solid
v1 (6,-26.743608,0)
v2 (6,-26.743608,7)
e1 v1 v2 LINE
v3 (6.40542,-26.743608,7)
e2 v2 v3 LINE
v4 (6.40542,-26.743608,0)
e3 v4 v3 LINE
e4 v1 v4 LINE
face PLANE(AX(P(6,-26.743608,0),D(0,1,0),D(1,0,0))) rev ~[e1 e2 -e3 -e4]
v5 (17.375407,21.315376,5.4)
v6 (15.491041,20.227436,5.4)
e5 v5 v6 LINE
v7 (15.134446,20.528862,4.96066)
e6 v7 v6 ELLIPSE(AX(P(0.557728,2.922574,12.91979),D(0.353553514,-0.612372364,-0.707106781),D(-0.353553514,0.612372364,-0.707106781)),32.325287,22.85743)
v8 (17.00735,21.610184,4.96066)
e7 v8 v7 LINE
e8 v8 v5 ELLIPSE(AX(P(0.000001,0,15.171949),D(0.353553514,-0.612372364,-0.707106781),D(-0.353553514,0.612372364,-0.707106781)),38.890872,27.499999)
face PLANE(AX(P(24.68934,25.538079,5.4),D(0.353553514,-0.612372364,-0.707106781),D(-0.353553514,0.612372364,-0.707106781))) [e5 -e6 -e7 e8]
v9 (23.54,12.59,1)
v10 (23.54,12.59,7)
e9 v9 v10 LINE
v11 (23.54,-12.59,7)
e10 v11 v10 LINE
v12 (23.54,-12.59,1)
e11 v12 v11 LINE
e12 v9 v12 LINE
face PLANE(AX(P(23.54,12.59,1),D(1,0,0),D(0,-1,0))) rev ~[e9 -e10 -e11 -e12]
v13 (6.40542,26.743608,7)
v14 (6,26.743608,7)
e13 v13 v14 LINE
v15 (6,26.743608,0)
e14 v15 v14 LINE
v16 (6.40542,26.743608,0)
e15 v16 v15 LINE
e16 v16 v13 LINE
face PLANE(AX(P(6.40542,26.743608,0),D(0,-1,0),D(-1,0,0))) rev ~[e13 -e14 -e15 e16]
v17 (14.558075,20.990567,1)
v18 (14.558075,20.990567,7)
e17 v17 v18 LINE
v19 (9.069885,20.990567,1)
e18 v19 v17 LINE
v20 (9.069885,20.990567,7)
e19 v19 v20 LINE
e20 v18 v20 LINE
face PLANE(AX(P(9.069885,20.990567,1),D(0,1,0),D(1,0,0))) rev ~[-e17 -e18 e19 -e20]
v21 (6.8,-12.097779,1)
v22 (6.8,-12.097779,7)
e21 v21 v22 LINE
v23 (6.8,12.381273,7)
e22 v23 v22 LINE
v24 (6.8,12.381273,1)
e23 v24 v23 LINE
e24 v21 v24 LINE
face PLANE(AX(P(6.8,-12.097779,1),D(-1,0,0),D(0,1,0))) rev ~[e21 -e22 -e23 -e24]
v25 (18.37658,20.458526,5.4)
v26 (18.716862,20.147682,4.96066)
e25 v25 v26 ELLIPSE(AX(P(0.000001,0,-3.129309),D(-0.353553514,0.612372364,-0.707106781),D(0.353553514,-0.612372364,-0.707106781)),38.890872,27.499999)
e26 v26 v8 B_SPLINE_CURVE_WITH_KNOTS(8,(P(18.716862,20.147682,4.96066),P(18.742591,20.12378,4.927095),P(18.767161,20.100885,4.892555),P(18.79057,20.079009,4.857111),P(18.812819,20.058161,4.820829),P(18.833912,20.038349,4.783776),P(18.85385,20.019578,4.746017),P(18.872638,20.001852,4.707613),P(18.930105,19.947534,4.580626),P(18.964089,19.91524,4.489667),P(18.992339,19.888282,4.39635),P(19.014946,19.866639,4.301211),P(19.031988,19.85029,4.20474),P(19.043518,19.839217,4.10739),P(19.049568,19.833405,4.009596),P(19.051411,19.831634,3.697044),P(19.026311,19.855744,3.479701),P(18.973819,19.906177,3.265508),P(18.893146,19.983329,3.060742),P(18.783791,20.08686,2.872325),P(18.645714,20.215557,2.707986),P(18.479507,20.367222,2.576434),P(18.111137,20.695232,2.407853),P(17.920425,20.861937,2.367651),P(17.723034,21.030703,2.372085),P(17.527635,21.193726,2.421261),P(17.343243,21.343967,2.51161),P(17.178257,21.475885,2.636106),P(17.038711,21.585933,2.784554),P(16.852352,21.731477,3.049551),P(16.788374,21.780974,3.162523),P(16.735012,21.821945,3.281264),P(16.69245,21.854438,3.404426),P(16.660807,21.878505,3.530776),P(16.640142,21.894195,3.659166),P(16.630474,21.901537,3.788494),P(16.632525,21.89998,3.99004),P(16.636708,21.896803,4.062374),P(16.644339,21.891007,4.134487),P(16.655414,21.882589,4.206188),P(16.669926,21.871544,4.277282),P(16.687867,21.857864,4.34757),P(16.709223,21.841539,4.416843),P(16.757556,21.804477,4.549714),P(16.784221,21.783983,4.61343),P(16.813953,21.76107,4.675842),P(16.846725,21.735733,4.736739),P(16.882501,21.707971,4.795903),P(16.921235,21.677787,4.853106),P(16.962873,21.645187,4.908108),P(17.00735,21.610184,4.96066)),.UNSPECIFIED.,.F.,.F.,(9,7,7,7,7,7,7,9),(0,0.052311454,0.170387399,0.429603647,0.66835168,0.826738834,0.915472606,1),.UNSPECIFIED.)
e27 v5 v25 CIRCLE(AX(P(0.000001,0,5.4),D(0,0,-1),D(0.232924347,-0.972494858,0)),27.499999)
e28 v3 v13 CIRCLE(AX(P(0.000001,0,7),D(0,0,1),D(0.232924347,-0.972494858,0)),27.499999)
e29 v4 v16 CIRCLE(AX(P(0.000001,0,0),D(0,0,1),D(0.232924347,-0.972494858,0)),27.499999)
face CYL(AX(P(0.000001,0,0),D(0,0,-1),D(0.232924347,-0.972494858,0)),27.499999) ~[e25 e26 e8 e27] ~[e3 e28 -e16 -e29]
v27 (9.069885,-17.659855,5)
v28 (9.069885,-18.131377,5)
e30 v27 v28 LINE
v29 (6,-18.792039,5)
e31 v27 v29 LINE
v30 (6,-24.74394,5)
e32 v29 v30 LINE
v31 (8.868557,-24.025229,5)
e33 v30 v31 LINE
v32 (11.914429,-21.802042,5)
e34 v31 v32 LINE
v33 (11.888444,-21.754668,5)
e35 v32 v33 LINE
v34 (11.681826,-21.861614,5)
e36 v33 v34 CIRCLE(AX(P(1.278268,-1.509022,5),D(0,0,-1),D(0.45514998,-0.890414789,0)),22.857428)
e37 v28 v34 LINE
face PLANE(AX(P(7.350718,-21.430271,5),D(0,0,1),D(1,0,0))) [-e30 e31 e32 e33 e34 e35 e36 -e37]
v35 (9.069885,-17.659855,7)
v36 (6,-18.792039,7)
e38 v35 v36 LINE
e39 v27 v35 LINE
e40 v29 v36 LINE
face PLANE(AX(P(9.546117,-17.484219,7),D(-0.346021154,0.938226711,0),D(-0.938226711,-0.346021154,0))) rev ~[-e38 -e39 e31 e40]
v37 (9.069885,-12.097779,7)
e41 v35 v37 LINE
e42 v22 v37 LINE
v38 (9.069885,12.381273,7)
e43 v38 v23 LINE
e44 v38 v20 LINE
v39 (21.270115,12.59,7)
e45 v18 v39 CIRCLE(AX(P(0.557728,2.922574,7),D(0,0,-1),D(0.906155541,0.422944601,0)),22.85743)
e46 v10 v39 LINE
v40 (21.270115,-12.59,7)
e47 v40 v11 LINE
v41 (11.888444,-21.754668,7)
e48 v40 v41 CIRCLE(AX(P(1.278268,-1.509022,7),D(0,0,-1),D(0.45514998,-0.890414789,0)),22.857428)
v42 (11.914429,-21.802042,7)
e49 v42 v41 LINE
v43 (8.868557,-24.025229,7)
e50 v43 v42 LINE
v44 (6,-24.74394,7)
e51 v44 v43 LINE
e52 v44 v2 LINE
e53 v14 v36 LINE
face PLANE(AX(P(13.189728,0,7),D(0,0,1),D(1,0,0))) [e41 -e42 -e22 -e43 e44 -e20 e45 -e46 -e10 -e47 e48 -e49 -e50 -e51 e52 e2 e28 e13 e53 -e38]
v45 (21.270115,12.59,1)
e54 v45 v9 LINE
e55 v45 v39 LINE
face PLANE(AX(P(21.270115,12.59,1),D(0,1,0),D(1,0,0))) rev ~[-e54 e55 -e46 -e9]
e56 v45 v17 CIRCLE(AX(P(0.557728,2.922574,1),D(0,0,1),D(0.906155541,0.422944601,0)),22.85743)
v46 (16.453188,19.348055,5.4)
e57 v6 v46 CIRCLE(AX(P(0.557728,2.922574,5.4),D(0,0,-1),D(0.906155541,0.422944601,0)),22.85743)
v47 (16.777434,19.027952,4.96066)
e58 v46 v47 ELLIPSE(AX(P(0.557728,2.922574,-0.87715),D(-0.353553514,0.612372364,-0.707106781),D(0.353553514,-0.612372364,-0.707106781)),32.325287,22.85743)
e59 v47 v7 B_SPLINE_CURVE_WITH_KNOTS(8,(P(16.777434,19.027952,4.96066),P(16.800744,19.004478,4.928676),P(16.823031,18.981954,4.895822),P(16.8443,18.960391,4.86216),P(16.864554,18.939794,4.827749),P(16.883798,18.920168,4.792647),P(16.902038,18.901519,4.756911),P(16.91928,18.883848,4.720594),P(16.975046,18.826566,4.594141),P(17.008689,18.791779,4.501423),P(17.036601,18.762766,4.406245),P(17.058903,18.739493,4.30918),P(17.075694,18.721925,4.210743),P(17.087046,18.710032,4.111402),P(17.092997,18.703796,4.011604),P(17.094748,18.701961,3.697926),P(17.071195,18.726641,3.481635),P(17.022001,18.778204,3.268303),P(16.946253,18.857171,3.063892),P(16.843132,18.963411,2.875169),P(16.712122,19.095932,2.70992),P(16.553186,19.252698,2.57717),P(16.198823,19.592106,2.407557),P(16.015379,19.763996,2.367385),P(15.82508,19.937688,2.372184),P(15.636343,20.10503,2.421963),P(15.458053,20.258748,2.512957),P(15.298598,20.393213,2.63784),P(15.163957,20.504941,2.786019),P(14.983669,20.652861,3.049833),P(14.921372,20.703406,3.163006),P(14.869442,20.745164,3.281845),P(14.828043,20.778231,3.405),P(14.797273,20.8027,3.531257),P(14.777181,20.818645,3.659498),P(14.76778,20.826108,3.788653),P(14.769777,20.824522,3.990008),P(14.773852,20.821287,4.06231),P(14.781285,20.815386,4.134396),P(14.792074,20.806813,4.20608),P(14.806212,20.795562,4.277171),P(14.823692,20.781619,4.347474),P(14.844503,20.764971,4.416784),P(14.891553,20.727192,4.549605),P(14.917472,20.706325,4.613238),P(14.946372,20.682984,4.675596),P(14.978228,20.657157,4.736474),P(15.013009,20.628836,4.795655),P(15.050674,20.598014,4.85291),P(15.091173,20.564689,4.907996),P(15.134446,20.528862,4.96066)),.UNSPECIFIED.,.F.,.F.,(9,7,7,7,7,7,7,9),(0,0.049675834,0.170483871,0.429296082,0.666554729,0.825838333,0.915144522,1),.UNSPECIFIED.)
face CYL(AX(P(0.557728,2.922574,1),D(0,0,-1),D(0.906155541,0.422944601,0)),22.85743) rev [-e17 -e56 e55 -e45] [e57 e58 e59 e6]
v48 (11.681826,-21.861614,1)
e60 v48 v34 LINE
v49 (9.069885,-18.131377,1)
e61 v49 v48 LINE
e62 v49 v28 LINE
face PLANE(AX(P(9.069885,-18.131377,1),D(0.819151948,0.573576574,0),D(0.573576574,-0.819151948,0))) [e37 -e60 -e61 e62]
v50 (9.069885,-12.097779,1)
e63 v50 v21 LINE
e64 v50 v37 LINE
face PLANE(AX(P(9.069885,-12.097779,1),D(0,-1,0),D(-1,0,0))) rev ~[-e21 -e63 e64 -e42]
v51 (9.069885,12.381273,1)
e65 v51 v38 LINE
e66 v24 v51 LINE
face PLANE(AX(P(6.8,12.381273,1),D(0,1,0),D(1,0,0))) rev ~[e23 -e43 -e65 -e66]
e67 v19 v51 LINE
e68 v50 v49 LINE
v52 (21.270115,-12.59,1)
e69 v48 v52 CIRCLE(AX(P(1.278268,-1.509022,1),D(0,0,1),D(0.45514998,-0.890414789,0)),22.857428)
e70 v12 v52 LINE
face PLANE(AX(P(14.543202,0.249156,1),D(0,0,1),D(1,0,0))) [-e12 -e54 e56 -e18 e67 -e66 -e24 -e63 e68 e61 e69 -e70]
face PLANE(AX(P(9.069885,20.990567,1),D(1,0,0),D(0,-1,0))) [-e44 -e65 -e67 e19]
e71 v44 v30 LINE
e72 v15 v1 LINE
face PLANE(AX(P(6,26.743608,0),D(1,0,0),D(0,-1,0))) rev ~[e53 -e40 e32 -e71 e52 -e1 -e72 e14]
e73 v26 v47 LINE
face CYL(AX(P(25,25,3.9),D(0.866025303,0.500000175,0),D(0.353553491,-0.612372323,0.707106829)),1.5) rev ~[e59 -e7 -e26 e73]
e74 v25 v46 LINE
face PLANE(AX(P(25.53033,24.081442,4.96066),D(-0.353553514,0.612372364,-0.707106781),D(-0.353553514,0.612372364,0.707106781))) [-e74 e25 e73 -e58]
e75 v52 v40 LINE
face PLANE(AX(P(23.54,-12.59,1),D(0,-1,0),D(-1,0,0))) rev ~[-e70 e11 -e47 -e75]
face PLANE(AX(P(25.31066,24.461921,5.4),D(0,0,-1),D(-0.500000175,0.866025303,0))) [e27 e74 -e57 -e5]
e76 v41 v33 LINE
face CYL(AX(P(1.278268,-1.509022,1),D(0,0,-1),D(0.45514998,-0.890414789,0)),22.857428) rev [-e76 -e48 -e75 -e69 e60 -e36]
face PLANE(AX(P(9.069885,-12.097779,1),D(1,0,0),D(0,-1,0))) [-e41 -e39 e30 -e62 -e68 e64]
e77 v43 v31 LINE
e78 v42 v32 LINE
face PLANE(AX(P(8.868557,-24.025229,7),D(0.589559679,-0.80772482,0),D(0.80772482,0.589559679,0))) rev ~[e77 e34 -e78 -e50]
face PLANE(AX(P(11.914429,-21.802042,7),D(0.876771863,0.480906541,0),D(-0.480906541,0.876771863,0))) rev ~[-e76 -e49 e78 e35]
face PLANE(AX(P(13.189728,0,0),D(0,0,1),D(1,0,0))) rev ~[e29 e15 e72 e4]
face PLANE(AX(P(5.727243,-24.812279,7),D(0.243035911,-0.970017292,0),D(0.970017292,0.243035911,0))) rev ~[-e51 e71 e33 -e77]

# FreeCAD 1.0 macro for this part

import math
import FreeCAD as App
import Part
import Sketcher

V = App.Vector
Q = App.Units.Quantity


def add_polygon(sketch, points):
    """Adds a closed chain of lines whose ends are joined by coincident constraints."""
    first, n = sketch.GeometryCount, len(points)
    for a, b in zip(points, points[1:] + points[:1]):
        sketch.addGeometry(Part.LineSegment(App.Vector(*a, 0), App.Vector(*b, 0)), False)
    for i in range(n):
        sketch.addConstraint(Sketcher.Constraint("Coincident", first + i, 2, first + (i + 1) % n, 1))

doc = App.newDocument("Part")
body = doc.addObject("PartDesign::Body", "Body")

# Sketch on XY plane
sketch1 = body.newObject("Sketcher::SketchObject", "Sketch")
sketch1.AttachmentSupport = (doc.getObject("XY_Plane"), [""])
sketch1.MapMode = "FlatFace"
sketch1.addGeometry([
    Part.ArcOfCircle(Part.Circle(V(0.000001, 0, 0), V(0, 0, 1), 27.499999), math.radians(-76.530698), math.radians(76.530698)),
    Part.LineSegment(V(6.40542, 26.743608, 0), V(6, 26.743608, 0)),
    Part.LineSegment(V(6, 26.743608, 0), V(6, -26.743608, 0)),
    Part.LineSegment(V(6, -26.743608, 0), V(6.40542, -26.743608, 0)),
], False)
sketch1.addConstraint([
    Sketcher.Constraint("Coincident", 0, 2, 1, 1),
    Sketcher.Constraint("Coincident", 1, 2, 2, 1),
    Sketcher.Constraint("Coincident", 2, 2, 3, 1),
    Sketcher.Constraint("Coincident", 3, 2, 0, 1),
    Sketcher.Constraint("Horizontal", 1),
    Sketcher.Constraint("Vertical", 2),
    Sketcher.Constraint("Horizontal", 3),
    Sketcher.Constraint("Coincident", 0, 3, -1, 1),
    Sketcher.Constraint("Vertical", 0, 2, 3, 2),
    Sketcher.Constraint("Radius", 0, Q("27.499999 mm")),
    Sketcher.Constraint("DistanceX", -1, 1, 1, 2, Q("6 mm")),
    Sketcher.Constraint("DistanceX", 1, 2, 1, 1, Q("0.40542 mm")),
])
pad1 = body.newObject("PartDesign::Pad", "Pad")
pad1.Profile = sketch1
pad1.Length = 7

# Sketch on XY plane
sketch2 = body.newObject("Sketcher::SketchObject", "Sketch001")
sketch2.AttachmentSupport = (doc.getObject("XY_Plane"), [""])
sketch2.MapMode = "FlatFace"
sketch2.AttachmentOffset = App.Placement(V(0, 0, 1), App.Rotation())
sketch2.addGeometry([
    Part.LineSegment(V(9.069885, 20.990567, 0), V(9.069885, 12.381273, 0)),  # 0
    Part.LineSegment(V(9.069885, 12.381273, 0), V(6.8, 12.381273, 0)),  # 1
    Part.LineSegment(V(6.8, 12.381273, 0), V(6.8, -12.097779, 0)),  # 2
    Part.LineSegment(V(6.8, -12.097779, 0), V(9.069885, -12.097779, 0)),  # 3
    Part.LineSegment(V(9.069885, -12.097779, 0), V(9.069885, -18.131377, 0)),  # 4
    Part.LineSegment(V(9.069885, -18.131377, 0), V(11.681826, -21.861614, 0)),  # 5
    Part.ArcOfCircle(Part.Circle(V(1.278268, -1.509022, 0), V(0, 0, 1), 22.857428), math.radians(-62.925415), math.radians(-28.998501)),  # 6
    Part.LineSegment(V(21.270115, -12.59, 0), V(23.54, -12.59, 0)),  # 7
    Part.LineSegment(V(23.54, -12.59, 0), V(23.54, 12.59, 0)),  # 8
    Part.LineSegment(V(23.54, 12.59, 0), V(21.270115, 12.59, 0)),  # 9
    Part.ArcOfCircle(Part.Circle(V(0.557728, 2.922574, 0), V(0, 0, 1), 22.85743), math.radians(25.020633), math.radians(52.228968)),  # 10
    Part.LineSegment(V(14.558075, 20.990567, 0), V(9.069885, 20.990567, 0)),  # 11
], False)
sketch2.addConstraint([
    Sketcher.Constraint("Coincident", 0, 2, 1, 1),
    Sketcher.Constraint("Coincident", 1, 2, 2, 1),
    Sketcher.Constraint("Coincident", 2, 2, 3, 1),
    Sketcher.Constraint("Coincident", 3, 2, 4, 1),
    Sketcher.Constraint("Coincident", 4, 2, 5, 1),
    Sketcher.Constraint("Coincident", 5, 2, 6, 1),
    Sketcher.Constraint("Coincident", 6, 2, 7, 1),
    Sketcher.Constraint("Coincident", 7, 2, 8, 1),
    Sketcher.Constraint("Coincident", 8, 2, 9, 1),
    Sketcher.Constraint("Coincident", 9, 2, 10, 1),
    Sketcher.Constraint("Coincident", 10, 2, 11, 1),
    Sketcher.Constraint("Coincident", 11, 2, 0, 1),
    Sketcher.Constraint("Vertical", 0),
    Sketcher.Constraint("Horizontal", 1),
    Sketcher.Constraint("Vertical", 2),
    Sketcher.Constraint("Horizontal", 3),
    Sketcher.Constraint("Vertical", 4),
    Sketcher.Constraint("Horizontal", 7),
    Sketcher.Constraint("Vertical", 8),
    Sketcher.Constraint("Horizontal", 9),
    Sketcher.Constraint("Horizontal", 11),
    Sketcher.Constraint("Equal", 6, 10),
    Sketcher.Constraint("Symmetric", 6, 2, 9, 2, -1),
    Sketcher.Constraint("Vertical", 0, 2, 3, 2),
    Sketcher.Constraint("Equal", 3, 7),
    Sketcher.Constraint("Angle", 5, Q("-54.99999 deg")),
    Sketcher.Constraint("DistanceY", 8, 1, 8, 2, Q("25.18 mm")),
    Sketcher.Constraint("DistanceX", -1, 1, 1, 2, Q("6.8 mm")),
    Sketcher.Constraint("DistanceX", -1, 1, 7, 2, Q("23.54 mm")),
    Sketcher.Constraint("Radius", 10, Q("22.85743 mm")),
    Sketcher.Constraint("DistanceY", 4, 2, 4, 1, Q("6.033598 mm")),
    Sketcher.Constraint("DistanceX", 11, 2, 11, 1, Q("5.48819 mm")),
    Sketcher.Constraint("DistanceY", 2, 2, 2, 1, Q("24.479052 mm")),
    Sketcher.Constraint("DistanceY", 10, 3, 0, 2, Q("9.458699 mm")),
    Sketcher.Constraint("Distance", 5, Q("4.553779 mm")),
    Sketcher.Constraint("DistanceX", 1, 2, 1, 1, Q("2.269885 mm")),
    Sketcher.Constraint("DistanceY", 0, 2, 0, 1, Q("8.609294 mm")),
])
pocket1 = body.newObject("PartDesign::Pocket", "Pocket")
pocket1.Profile = sketch2
pocket1.Type = "ThroughAll"
pocket1.Reversed = True

# Sketch on an angled plane
sketch3 = body.newObject("Sketcher::SketchObject", "Sketch002")
sketch3.Placement = App.Placement(V(25, 25, 0), App.Rotation(V(-0.500000175, 0.866025303, 0), V(0, 0, 1), V(0.866025303, 0.500000175, 0), "ZXY"))
sketch3.addGeometry([
    Part.ArcOfCircle(Part.Circle(V(0, 3.9, 0), V(0, 0, 1), 1.5), math.radians(134.999996), math.radians(405.000004)),
    Part.LineSegment(V(1.06066, 4.96066, 0), V(0.62132, 5.4, 0)),
    Part.LineSegment(V(0.62132, 5.4, 0), V(-0.62132, 5.4, 0)),
    Part.LineSegment(V(-0.62132, 5.4, 0), V(-1.06066, 4.96066, 0)),
], False)
sketch3.addConstraint([
    Sketcher.Constraint("Tangent", 0, 2, 1, 1),
    Sketcher.Constraint("Coincident", 1, 2, 2, 1),
    Sketcher.Constraint("Coincident", 2, 2, 3, 1),
    Sketcher.Constraint("Tangent", 3, 2, 0, 1),
    Sketcher.Constraint("Horizontal", 2),
    Sketcher.Constraint("Symmetric", 0, 2, 3, 2, -2),
    Sketcher.Constraint("Perpendicular", 1, 3),
    Sketcher.Constraint("Radius", 0, Q("1.5 mm")),
    Sketcher.Constraint("DistanceY", -1, 1, 0, 3, Q("3.9 mm")),
    Sketcher.Constraint("DistanceY", -1, 1, 1, 2, Q("5.4 mm")),
])
pocket2 = body.newObject("PartDesign::Pocket", "Pocket001")
pocket2.Profile = sketch3
pocket2.Length = 12

# Sketch on XY plane
sketch4 = body.newObject("Sketcher::SketchObject", "Sketch003")
sketch4.AttachmentSupport = (doc.getObject("XY_Plane"), [""])
sketch4.MapMode = "FlatFace"
sketch4.AttachmentOffset = App.Placement(V(0, 0, 7), App.Rotation())
add_polygon(sketch4, [(9.546117, -17.484219), (3.82131, -19.595547), (3.82131, -24.962748), (5.727243, -24.812279), (8.868557, -24.025229), (11.914429, -21.802042)])  # lines 0-5
sketch4.addConstraint([
    Sketcher.Constraint("Vertical", 1),
    Sketcher.Constraint("DistanceY", 1, 2, 1, 1, Q("5.367201 mm")),
    Sketcher.Constraint("Distance", 0, Q("6.101731 mm")),
    Sketcher.Constraint("Distance", 3, Q("3.23841 mm")),
    Sketcher.Constraint("DistanceX", -1, 1, 0, 2, Q("3.82131 mm")),
    Sketcher.Constraint("DistanceY", 1, 2, -1, 1, Q("24.962748 mm")),
    Sketcher.Constraint("DistanceY", 2, 2, -1, 1, Q("24.812279 mm")),
    Sketcher.Constraint("DistanceY", 3, 2, -1, 1, Q("24.025229 mm")),
    Sketcher.Constraint("DistanceX", -1, 1, 4, 2, Q("11.914429 mm")),
    Sketcher.Constraint("DistanceY", 4, 2, -1, 1, Q("21.802042 mm")),
    Sketcher.Constraint("DistanceY", 5, 2, -1, 1, Q("17.484219 mm")),
    Sketcher.Constraint("DistanceX", 3, 2, 5, 2, Q("0.67756 mm")),
])
pocket3 = body.newObject("PartDesign::Pocket", "Pocket002")
pocket3.Profile = sketch4
pocket3.Length = 2

doc.recompute()
